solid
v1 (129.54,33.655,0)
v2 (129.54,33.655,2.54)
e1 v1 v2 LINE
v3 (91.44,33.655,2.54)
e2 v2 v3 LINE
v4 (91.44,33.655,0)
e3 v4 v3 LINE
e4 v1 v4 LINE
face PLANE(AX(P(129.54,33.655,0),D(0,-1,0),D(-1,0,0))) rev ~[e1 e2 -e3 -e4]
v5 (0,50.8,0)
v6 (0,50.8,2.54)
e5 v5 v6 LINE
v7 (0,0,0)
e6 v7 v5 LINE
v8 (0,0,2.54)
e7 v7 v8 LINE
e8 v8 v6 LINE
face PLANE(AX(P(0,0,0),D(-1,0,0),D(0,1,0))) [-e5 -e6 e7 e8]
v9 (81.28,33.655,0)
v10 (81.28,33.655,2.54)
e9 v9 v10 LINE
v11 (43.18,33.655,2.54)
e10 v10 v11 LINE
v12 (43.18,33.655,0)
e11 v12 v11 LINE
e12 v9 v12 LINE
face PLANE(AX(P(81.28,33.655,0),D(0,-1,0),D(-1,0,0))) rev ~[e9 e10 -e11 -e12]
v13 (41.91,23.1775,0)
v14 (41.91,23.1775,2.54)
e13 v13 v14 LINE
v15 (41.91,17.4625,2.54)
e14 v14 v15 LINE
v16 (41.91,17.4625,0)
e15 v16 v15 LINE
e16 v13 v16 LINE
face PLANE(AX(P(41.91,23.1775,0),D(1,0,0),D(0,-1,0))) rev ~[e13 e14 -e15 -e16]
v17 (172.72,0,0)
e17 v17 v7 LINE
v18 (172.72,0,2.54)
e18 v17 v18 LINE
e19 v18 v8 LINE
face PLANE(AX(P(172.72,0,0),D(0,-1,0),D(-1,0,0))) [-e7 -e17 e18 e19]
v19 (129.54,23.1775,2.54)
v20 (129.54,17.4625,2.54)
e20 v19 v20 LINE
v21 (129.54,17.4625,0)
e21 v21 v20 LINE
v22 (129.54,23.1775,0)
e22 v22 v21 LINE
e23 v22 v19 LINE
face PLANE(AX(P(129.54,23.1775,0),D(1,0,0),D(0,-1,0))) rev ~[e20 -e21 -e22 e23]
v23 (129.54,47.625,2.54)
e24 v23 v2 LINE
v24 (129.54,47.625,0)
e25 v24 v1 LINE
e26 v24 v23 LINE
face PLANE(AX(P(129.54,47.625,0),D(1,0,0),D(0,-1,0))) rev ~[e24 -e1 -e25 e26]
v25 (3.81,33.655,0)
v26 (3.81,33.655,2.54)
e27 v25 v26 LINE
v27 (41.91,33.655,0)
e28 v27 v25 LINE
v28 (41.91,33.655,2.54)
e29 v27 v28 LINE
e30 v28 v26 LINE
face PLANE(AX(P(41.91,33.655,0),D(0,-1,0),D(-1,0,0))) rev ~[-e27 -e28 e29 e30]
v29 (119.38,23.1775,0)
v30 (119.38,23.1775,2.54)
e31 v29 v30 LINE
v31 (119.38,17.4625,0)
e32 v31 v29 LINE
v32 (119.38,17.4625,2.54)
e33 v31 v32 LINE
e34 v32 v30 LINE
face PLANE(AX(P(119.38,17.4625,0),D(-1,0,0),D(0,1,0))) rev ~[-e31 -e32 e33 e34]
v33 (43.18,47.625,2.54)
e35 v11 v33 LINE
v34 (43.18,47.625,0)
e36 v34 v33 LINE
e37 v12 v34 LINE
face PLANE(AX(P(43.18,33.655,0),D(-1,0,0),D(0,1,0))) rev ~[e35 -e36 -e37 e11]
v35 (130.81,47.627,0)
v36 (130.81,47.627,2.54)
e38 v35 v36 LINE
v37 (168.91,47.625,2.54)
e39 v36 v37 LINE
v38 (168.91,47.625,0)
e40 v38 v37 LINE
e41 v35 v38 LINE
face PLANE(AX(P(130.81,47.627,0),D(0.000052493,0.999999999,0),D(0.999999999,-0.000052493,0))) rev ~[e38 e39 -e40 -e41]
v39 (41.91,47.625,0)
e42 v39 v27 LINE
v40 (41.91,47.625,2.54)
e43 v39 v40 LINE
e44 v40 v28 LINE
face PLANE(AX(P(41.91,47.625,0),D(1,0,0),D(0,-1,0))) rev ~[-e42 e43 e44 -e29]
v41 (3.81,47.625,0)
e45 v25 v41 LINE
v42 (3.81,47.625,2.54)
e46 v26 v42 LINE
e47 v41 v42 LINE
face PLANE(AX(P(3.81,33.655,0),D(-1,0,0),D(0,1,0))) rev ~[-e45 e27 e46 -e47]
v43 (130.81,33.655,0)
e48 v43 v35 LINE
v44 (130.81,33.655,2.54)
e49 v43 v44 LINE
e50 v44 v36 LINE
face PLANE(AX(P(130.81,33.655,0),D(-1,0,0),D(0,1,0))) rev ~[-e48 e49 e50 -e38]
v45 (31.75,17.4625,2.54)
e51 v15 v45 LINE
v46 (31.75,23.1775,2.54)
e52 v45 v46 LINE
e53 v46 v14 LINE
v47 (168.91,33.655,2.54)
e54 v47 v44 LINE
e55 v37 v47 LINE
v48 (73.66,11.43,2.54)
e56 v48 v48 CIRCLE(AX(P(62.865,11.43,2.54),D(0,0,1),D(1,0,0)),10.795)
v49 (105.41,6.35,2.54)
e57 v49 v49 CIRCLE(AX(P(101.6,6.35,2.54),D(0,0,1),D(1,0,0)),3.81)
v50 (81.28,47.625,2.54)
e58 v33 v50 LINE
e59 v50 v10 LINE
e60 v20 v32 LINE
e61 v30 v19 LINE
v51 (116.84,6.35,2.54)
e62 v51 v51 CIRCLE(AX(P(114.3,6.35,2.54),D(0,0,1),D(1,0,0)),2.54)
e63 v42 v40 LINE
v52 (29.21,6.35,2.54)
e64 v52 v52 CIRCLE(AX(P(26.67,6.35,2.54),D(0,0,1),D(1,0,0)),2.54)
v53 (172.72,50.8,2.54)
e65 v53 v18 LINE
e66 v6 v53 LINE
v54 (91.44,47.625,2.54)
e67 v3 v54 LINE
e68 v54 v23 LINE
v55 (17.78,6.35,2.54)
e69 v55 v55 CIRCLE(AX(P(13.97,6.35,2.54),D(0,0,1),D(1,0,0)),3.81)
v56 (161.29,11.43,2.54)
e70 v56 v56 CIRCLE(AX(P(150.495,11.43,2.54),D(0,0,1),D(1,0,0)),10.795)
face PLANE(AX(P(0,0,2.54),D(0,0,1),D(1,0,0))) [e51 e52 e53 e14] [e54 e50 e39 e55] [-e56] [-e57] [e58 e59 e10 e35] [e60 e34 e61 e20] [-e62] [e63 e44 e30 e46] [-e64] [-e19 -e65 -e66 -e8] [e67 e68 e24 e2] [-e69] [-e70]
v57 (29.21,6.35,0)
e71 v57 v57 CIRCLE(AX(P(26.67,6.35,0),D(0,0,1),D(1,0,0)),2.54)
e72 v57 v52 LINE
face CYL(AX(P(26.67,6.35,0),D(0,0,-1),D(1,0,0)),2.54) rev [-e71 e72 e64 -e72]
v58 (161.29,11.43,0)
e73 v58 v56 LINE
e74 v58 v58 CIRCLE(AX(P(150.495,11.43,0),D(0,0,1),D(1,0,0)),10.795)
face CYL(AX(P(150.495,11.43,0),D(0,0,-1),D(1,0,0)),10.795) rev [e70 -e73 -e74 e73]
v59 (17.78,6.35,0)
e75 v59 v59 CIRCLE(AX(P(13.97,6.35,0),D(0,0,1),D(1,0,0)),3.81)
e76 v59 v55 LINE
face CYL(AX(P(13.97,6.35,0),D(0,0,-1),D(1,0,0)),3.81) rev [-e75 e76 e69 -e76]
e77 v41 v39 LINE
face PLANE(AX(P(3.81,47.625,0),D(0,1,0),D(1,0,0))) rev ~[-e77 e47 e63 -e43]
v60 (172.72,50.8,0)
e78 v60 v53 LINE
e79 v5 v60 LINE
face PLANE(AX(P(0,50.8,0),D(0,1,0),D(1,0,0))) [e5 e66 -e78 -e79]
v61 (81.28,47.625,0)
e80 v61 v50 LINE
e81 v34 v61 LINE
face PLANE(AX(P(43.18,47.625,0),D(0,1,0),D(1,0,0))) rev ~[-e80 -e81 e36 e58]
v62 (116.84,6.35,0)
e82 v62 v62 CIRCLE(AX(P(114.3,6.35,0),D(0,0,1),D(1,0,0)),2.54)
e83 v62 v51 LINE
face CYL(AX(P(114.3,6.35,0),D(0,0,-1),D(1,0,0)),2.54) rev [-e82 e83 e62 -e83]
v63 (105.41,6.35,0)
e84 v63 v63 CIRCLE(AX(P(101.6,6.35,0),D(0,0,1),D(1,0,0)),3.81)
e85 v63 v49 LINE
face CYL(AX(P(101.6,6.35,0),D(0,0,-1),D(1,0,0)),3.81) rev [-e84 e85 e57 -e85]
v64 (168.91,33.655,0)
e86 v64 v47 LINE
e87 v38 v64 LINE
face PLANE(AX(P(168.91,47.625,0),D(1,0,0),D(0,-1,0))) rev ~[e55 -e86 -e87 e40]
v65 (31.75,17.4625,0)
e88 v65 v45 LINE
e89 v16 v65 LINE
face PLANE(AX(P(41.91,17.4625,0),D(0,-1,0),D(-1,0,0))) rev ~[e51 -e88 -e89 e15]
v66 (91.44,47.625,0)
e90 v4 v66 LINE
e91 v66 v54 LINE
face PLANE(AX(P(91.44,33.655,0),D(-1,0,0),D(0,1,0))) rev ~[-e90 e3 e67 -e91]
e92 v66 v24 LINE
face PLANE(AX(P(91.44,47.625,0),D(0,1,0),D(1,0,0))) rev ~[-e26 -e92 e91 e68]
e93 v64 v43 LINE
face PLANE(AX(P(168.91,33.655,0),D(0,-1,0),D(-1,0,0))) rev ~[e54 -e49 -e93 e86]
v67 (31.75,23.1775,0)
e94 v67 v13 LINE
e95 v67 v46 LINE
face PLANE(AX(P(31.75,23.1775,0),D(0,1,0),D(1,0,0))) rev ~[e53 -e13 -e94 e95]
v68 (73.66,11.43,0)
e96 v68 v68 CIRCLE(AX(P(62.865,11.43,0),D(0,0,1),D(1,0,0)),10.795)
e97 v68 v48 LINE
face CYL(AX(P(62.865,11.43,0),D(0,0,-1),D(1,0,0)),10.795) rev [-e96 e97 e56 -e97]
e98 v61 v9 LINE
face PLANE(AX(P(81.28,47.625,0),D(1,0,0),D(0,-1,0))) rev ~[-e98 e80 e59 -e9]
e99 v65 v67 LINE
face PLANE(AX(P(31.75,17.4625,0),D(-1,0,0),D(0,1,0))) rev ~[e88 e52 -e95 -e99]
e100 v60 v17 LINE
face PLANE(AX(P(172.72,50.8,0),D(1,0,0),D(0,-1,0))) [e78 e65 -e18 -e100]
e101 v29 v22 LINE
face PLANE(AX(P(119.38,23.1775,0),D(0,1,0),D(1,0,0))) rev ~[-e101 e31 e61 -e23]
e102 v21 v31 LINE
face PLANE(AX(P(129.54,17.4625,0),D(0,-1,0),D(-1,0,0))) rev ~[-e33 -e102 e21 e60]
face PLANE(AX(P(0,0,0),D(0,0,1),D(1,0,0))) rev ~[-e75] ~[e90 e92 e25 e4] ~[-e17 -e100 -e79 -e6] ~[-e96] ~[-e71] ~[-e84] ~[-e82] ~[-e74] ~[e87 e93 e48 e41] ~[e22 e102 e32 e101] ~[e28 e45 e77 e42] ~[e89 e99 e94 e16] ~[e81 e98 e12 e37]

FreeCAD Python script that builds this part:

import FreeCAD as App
import Part
import Sketcher
from FreeCAD import Vector
Q = App.Units.Quantity

doc = App.newDocument("Part")
body = doc.addObject("PartDesign::Body", "Body")

# Sketch on XY plane
sketch1 = body.newObject("Sketcher::SketchObject", "Sketch")
sketch1.AttachmentSupport = (doc.getObject("XY_Plane"), [""])
sketch1.MapMode = "FlatFace"
sketch1.addGeometry(Part.LineSegment(Vector(172.72, 50.8, 0), Vector(0, 50.8, 0)), False)
sketch1.addGeometry(Part.LineSegment(Vector(0, 50.8, 0), Vector(0, 0, 0)), False)
sketch1.addGeometry(Part.LineSegment(Vector(0, 0, 0), Vector(172.72, 0, 0)), False)
sketch1.addGeometry(Part.LineSegment(Vector(172.72, 0, 0), Vector(172.72, 50.8, 0)), False)
sketch1.addGeometry(Part.Circle(Vector(13.97, 6.35, 0), Vector(0, 0, 1), 3.81), False)
sketch1.addGeometry(Part.Circle(Vector(26.67, 6.35, 0), Vector(0, 0, 1), 2.54), False)
sketch1.addGeometry(Part.Circle(Vector(62.865, 11.43, 0), Vector(0, 0, 1), 10.795), False)
sketch1.addGeometry(Part.LineSegment(Vector(31.75, 17.4625, 0), Vector(31.75, 23.1775, 0)), False)
sketch1.addGeometry(Part.LineSegment(Vector(31.75, 23.1775, 0), Vector(41.91, 23.1775, 0)), False)
sketch1.addGeometry(Part.LineSegment(Vector(41.91, 23.1775, 0), Vector(41.91, 17.4625, 0)), False)
sketch1.addGeometry(Part.LineSegment(Vector(41.91, 17.4625, 0), Vector(31.75, 17.4625, 0)), False)
sketch1.addGeometry(Part.Circle(Vector(101.6, 6.35, 0), Vector(0, 0, 1), 3.81), False)
sketch1.addGeometry(Part.Circle(Vector(114.3, 6.35, 0), Vector(0, 0, 1), 2.54), False)
sketch1.addGeometry(Part.Circle(Vector(150.495, 11.43, 0), Vector(0, 0, 1), 10.795), False)
sketch1.addGeometry(Part.LineSegment(Vector(119.38, 17.4625, 0), Vector(119.38, 23.1775, 0)), False)
sketch1.addGeometry(Part.LineSegment(Vector(119.38, 23.1775, 0), Vector(129.54, 23.1775, 0)), False)
sketch1.addGeometry(Part.LineSegment(Vector(129.54, 23.1775, 0), Vector(129.54, 17.4625, 0)), False)
sketch1.addGeometry(Part.LineSegment(Vector(129.54, 17.4625, 0), Vector(119.38, 17.4625, 0)), False)
sketch1.addGeometry(Part.LineSegment(Vector(3.81, 33.655, 0), Vector(3.81, 47.625, 0)), False)
sketch1.addGeometry(Part.LineSegment(Vector(3.81, 47.625, 0), Vector(41.91, 47.625, 0)), False)
sketch1.addGeometry(Part.LineSegment(Vector(41.91, 47.625, 0), Vector(41.91, 33.655, 0)), False)
sketch1.addGeometry(Part.LineSegment(Vector(41.91, 33.655, 0), Vector(3.81, 33.655, 0)), False)
sketch1.addGeometry(Part.LineSegment(Vector(43.18, 33.655, 0), Vector(43.18, 47.625, 0)), False)
sketch1.addGeometry(Part.LineSegment(Vector(43.18, 47.625, 0), Vector(81.28, 47.625, 0)), False)
sketch1.addGeometry(Part.LineSegment(Vector(81.28, 47.625, 0), Vector(81.28, 33.655, 0)), False)
sketch1.addGeometry(Part.LineSegment(Vector(81.28, 33.655, 0), Vector(43.18, 33.655, 0)), False)
sketch1.addGeometry(Part.LineSegment(Vector(91.44, 33.655, 0), Vector(91.44, 47.625, 0)), False)
sketch1.addGeometry(Part.LineSegment(Vector(91.44, 47.625, 0), Vector(129.54, 47.625, 0)), False)
sketch1.addGeometry(Part.LineSegment(Vector(129.54, 47.625, 0), Vector(129.54, 33.655, 0)), False)
sketch1.addGeometry(Part.LineSegment(Vector(129.54, 33.655, 0), Vector(91.44, 33.655, 0)), False)
sketch1.addGeometry(Part.LineSegment(Vector(130.81, 33.655, 0), Vector(130.81, 47.627, 0)), False)
sketch1.addGeometry(Part.LineSegment(Vector(130.81, 47.627, 0), Vector(168.91, 47.625, 0)), False)
sketch1.addGeometry(Part.LineSegment(Vector(168.91, 47.625, 0), Vector(168.91, 33.655, 0)), False)
sketch1.addGeometry(Part.LineSegment(Vector(168.91, 33.655, 0), Vector(130.81, 33.655, 0)), False)
sketch1.addConstraint(Sketcher.Constraint("Coincident", 0, 2, 1, 1))
sketch1.addConstraint(Sketcher.Constraint("Coincident", 1, 2, 2, 1))
sketch1.addConstraint(Sketcher.Constraint("Coincident", 2, 2, 3, 1))
sketch1.addConstraint(Sketcher.Constraint("Coincident", 3, 2, 0, 1))
sketch1.addConstraint(Sketcher.Constraint("Coincident", 7, 2, 8, 1))
sketch1.addConstraint(Sketcher.Constraint("Coincident", 8, 2, 9, 1))
sketch1.addConstraint(Sketcher.Constraint("Coincident", 9, 2, 10, 1))
sketch1.addConstraint(Sketcher.Constraint("Coincident", 10, 2, 7, 1))
sketch1.addConstraint(Sketcher.Constraint("Coincident", 14, 2, 15, 1))
sketch1.addConstraint(Sketcher.Constraint("Coincident", 15, 2, 16, 1))
sketch1.addConstraint(Sketcher.Constraint("Coincident", 16, 2, 17, 1))
sketch1.addConstraint(Sketcher.Constraint("Coincident", 17, 2, 14, 1))
sketch1.addConstraint(Sketcher.Constraint("Coincident", 18, 2, 19, 1))
sketch1.addConstraint(Sketcher.Constraint("Coincident", 19, 2, 20, 1))
sketch1.addConstraint(Sketcher.Constraint("Coincident", 20, 2, 21, 1))
sketch1.addConstraint(Sketcher.Constraint("Coincident", 21, 2, 18, 1))
sketch1.addConstraint(Sketcher.Constraint("Coincident", 22, 2, 23, 1))
sketch1.addConstraint(Sketcher.Constraint("Coincident", 23, 2, 24, 1))
sketch1.addConstraint(Sketcher.Constraint("Coincident", 24, 2, 25, 1))
sketch1.addConstraint(Sketcher.Constraint("Coincident", 25, 2, 22, 1))
sketch1.addConstraint(Sketcher.Constraint("Coincident", 26, 2, 27, 1))
sketch1.addConstraint(Sketcher.Constraint("Coincident", 27, 2, 28, 1))
sketch1.addConstraint(Sketcher.Constraint("Coincident", 28, 2, 29, 1))
sketch1.addConstraint(Sketcher.Constraint("Coincident", 29, 2, 26, 1))
sketch1.addConstraint(Sketcher.Constraint("Coincident", 30, 2, 31, 1))
sketch1.addConstraint(Sketcher.Constraint("Coincident", 31, 2, 32, 1))
sketch1.addConstraint(Sketcher.Constraint("Coincident", 32, 2, 33, 1))
sketch1.addConstraint(Sketcher.Constraint("Coincident", 33, 2, 30, 1))
sketch1.addConstraint(Sketcher.Constraint("Horizontal", 0))
sketch1.addConstraint(Sketcher.Constraint("Vertical", 1))
sketch1.addConstraint(Sketcher.Constraint("Horizontal", 2))
sketch1.addConstraint(Sketcher.Constraint("Vertical", 3))
sketch1.addConstraint(Sketcher.Constraint("Vertical", 7))
sketch1.addConstraint(Sketcher.Constraint("Horizontal", 8))
sketch1.addConstraint(Sketcher.Constraint("Vertical", 9))
sketch1.addConstraint(Sketcher.Constraint("Horizontal", 10))
sketch1.addConstraint(Sketcher.Constraint("Vertical", 14))
sketch1.addConstraint(Sketcher.Constraint("Horizontal", 15))
sketch1.addConstraint(Sketcher.Constraint("Vertical", 16))
sketch1.addConstraint(Sketcher.Constraint("Horizontal", 17))
sketch1.addConstraint(Sketcher.Constraint("Vertical", 18))
sketch1.addConstraint(Sketcher.Constraint("Horizontal", 19))
sketch1.addConstraint(Sketcher.Constraint("Vertical", 20))
sketch1.addConstraint(Sketcher.Constraint("Horizontal", 21))
sketch1.addConstraint(Sketcher.Constraint("Vertical", 22))
sketch1.addConstraint(Sketcher.Constraint("Horizontal", 23))
sketch1.addConstraint(Sketcher.Constraint("Vertical", 24))
sketch1.addConstraint(Sketcher.Constraint("Horizontal", 25))
sketch1.addConstraint(Sketcher.Constraint("Vertical", 26))
sketch1.addConstraint(Sketcher.Constraint("Horizontal", 27))
sketch1.addConstraint(Sketcher.Constraint("Vertical", 28))
sketch1.addConstraint(Sketcher.Constraint("Horizontal", 29))
sketch1.addConstraint(Sketcher.Constraint("Vertical", 30))
sketch1.addConstraint(Sketcher.Constraint("Vertical", 32))
sketch1.addConstraint(Sketcher.Constraint("Horizontal", 33))
sketch1.addConstraint(Sketcher.Constraint("Coincident", 1, 2, -1, 1))
sketch1.addConstraint(Sketcher.Constraint("Equal", 4, 11))
sketch1.addConstraint(Sketcher.Constraint("Equal", 5, 12))
sketch1.addConstraint(Sketcher.Constraint("Equal", 6, 13))
sketch1.addConstraint(Sketcher.Constraint("Horizontal", 4, 3, 5, 3))
sketch1.addConstraint(Sketcher.Constraint("Horizontal", 5, 3, 11, 3))
sketch1.addConstraint(Sketcher.Constraint("Horizontal", 11, 3, 12, 3))
sketch1.addConstraint(Sketcher.Constraint("Horizontal", 6, 3, 13, 3))
sketch1.addConstraint(Sketcher.Constraint("Horizontal", 8, 2, 14, 2))
sketch1.addConstraint(Sketcher.Constraint("Horizontal", 10, 2, 16, 2))
sketch1.addConstraint(Sketcher.Constraint("Horizontal", 19, 2, 22, 2))
sketch1.addConstraint(Sketcher.Constraint("Horizontal", 21, 2, 24, 2))
sketch1.addConstraint(Sketcher.Constraint("Horizontal", 23, 2, 26, 2))
sketch1.addConstraint(Sketcher.Constraint("Horizontal", 25, 2, 28, 2))
sketch1.addConstraint(Sketcher.Constraint("Horizontal", 27, 2, 31, 2))
sketch1.addConstraint(Sketcher.Constraint("Horizontal", 29, 2, 32, 2))
sketch1.addConstraint(Sketcher.Constraint("Vertical", 9, 2, 19, 2))
sketch1.addConstraint(Sketcher.Constraint("Vertical", 16, 2, 27, 2))
sketch1.addConstraint(Sketcher.Constraint("Equal", 10, 15))
sketch1.addConstraint(Sketcher.Constraint("Equal", 21, 23))
sketch1.addConstraint(Sketcher.Constraint("Equal", 25, 27))
sketch1.addConstraint(Sketcher.Constraint("Equal", 29, 33))
sketch1.addConstraint(Sketcher.Constraint("Diameter", 4, Q("0.3 in")))
sketch1.addConstraint(Sketcher.Constraint("Diameter", 5, Q("0.2 in")))
sketch1.addConstraint(Sketcher.Constraint("Diameter", 6, Q("0.85 in")))
sketch1.addConstraint(Sketcher.Constraint("DistanceY", 1, 2, 1, 1, Q("2 in")))
sketch1.addConstraint(Sketcher.Constraint("DistanceX", 0, 2, 0, 1, Q("6.8 in")))
sketch1.addConstraint(Sketcher.Constraint("DistanceX", 8, 1, 8, 2, Q("0.4 in")))
sketch1.addConstraint(Sketcher.Constraint("DistanceX", 19, 1, 19, 2, Q("1.5 in")))
sketch1.addConstraint(Sketcher.Constraint("DistanceX", -1, 1, 11, 3, Q("4 in")))
sketch1.addConstraint(Sketcher.Constraint("DistanceY", 18, 1, 18, 2, Q("0.55 in")))
sketch1.addConstraint(Sketcher.Constraint("DistanceX", -1, 1, 12, 3, Q("4.5 in")))
sketch1.addConstraint(Sketcher.Constraint("DistanceX", -1, 1, 14, 2, Q("4.7 in")))
sketch1.addConstraint(Sketcher.Constraint("DistanceX", -1, 1, 22, 2, Q("1.7 in")))
sketch1.addConstraint(Sketcher.Constraint("DistanceX", 4, 3, 5, 3, Q("0.5 in")))
sketch1.addConstraint(Sketcher.Constraint("DistanceY", 5, 3, 6, 3, Q("0.2 in")))
sketch1.addConstraint(Sketcher.Constraint("DistanceX", 5, 3, 7, 2, Q("0.2 in")))
sketch1.addConstraint(Sketcher.Constraint("DistanceY", 7, 1, 7, 2, Q("0.225 in")))
sketch1.addConstraint(Sketcher.Constraint("DistanceX", -1, 1, 4, 3, Q("0.55 in")))
sketch1.addConstraint(Sketcher.Constraint("DistanceY", -1, 1, 4, 3, Q("0.25 in")))
sketch1.addConstraint(Sketcher.Constraint("DistanceX", -1, 1, 30, 2, Q("5.15 in")))
sketch1.addConstraint(Sketcher.Constraint("DistanceX", 6, 3, 13, 3, Q("3.45 in")))
sketch1.addConstraint(Sketcher.Constraint("DistanceX", -1, 1, 6, 3, Q("2.475 in")))
sketch1.addConstraint(Sketcher.Constraint("DistanceY", -1, 1, 9, 2, Q("0.6875 in")))
sketch1.addConstraint(Sketcher.Constraint("DistanceY", -1, 1, 18, 2, Q("1.875 in")))
sketch1.addConstraint(Sketcher.Constraint("DistanceY", 30, 1, 30, 2, Q("13.972 mm")))
pad1 = body.newObject("PartDesign::Pad", "Pad")
pad1.Profile = sketch1
pad1.Length = Q("0.1 in")

doc.recompute()
